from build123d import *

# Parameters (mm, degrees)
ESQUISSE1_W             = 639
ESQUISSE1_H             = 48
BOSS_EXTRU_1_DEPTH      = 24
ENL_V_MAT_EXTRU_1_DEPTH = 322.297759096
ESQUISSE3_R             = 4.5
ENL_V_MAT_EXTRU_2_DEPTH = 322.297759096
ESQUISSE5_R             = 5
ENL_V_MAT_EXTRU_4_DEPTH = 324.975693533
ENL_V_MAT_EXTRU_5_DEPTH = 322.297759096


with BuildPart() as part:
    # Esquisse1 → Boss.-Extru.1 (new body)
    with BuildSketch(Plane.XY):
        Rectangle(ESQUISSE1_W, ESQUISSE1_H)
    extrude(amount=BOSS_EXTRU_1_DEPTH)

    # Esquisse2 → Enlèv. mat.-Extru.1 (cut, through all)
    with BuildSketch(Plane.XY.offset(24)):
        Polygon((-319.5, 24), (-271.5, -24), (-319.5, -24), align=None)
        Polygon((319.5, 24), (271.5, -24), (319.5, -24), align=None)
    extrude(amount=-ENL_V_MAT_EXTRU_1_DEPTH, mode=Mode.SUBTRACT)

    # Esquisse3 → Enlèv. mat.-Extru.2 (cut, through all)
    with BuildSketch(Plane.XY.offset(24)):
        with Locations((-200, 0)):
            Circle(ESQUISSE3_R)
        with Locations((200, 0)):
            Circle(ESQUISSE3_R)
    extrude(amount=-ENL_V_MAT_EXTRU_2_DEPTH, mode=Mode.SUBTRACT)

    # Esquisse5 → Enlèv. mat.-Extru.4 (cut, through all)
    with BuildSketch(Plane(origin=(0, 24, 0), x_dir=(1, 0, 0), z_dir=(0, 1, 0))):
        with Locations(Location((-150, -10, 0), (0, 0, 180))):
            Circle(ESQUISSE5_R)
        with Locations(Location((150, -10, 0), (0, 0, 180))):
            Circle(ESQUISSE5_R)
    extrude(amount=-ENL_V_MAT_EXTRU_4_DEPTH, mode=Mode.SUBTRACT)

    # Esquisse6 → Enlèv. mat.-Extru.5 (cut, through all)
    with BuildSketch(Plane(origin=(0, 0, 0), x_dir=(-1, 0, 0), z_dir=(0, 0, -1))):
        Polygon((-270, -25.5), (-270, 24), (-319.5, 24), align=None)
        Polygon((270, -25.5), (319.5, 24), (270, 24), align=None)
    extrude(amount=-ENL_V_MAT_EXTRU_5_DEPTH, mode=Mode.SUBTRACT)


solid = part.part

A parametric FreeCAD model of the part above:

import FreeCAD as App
import Part
import Sketcher

V = App.Vector


def add_polygon(sketch, points):
    """Adds a closed chain of lines whose ends are joined by coincident constraints."""
    first, n = sketch.GeometryCount, len(points)
    for a, b in zip(points, points[1:] + points[:1]):
        sketch.addGeometry(Part.LineSegment(App.Vector(*a, 0), App.Vector(*b, 0)), False)
    for i in range(n):
        sketch.addConstraint(Sketcher.Constraint("Coincident", first + i, 2, first + (i + 1) % n, 1))

doc = App.newDocument("Part")
body = doc.addObject("PartDesign::Body", "Body")

sketch1 = body.newObject("Sketcher::SketchObject", "Sketch")
sketch1.AttachmentSupport = (doc.getObject("XY_Plane"), [""])
sketch1.MapMode = "FlatFace"
add_polygon(sketch1, [(-320, 24), (-320, -24), (320, -24), (320, 24)])
sketch1.addConstraint([
    Sketcher.Constraint("Vertical", 0),
    Sketcher.Constraint("Horizontal", 1),
    Sketcher.Constraint("Vertical", 2),
    Sketcher.Constraint("Horizontal", 3),
    Sketcher.Constraint("Symmetric", 0, 2, 2, 2, -1, 1),
    Sketcher.Constraint("DistanceX", 1, 1, 1, 2, 639.0),
    Sketcher.Constraint("DistanceY", 0, 2, 0, 1, 48.0),
])
pad1 = body.newObject("PartDesign::Pad", "Pad")
pad1.Profile = sketch1
pad1.Length = 24

sketch2 = body.newObject("Sketcher::SketchObject", "Sketch001")
sketch2.AttachmentSupport = (doc.getObject("XY_Plane"), [""])
sketch2.MapMode = "FlatFace"
sketch2.AttachmentOffset = App.Placement(V(0, 0, 24), App.Rotation())
add_polygon(sketch2, [(-272, -24), (-320, 24), (-320, -24)])
add_polygon(sketch2, [(320, 24), (272, -24), (320, -24)])
sketch2.addConstraint([
    Sketcher.Constraint("Vertical", 1),
    Sketcher.Constraint("Horizontal", 2),
    Sketcher.Constraint("Horizontal", 4),
    Sketcher.Constraint("Vertical", 5),
    Sketcher.Constraint("Symmetric", 0, 2, 4, 2, -1, 1),
    Sketcher.Constraint("Symmetric", 2, 2, 3, 2, -2),
    Sketcher.Constraint("Perpendicular", 0, 3),
    Sketcher.Constraint("Horizontal", 0, 2, 5, 2),
    Sketcher.Constraint("DistanceX", 2, 1, 2, 2, 48.0),
    Sketcher.Constraint("DistanceX", 2, 2, 3, 2, 543.0),
])
pocket1 = body.newObject("PartDesign::Pocket", "Pocket")
pocket1.Profile = sketch2
pocket1.Type = "ThroughAll"

sketch3 = body.newObject("Sketcher::SketchObject", "Sketch002")
sketch3.AttachmentSupport = (doc.getObject("XY_Plane"), [""])
sketch3.MapMode = "FlatFace"
sketch3.AttachmentOffset = App.Placement(V(0, 0, 24), App.Rotation())
sketch3.addGeometry([
    Part.Circle(V(-200, 0, 0), V(0, 0, 1), 4.5),
    Part.Circle(V(200, 0, 0), V(0, 0, 1), 4.5),
], False)
sketch3.addConstraint([
    Sketcher.Constraint("Equal", 0, 1),
    Sketcher.Constraint("Symmetric", 0, 3, 1, 3, -1, 1),
    Sketcher.Constraint("PointOnObject", 0, 3, -1),
    Sketcher.Constraint("Diameter", 0, 9.0),
    Sketcher.Constraint("DistanceX", 0, 3, -1, 1, 200.0),
])
pocket2 = body.newObject("PartDesign::Pocket", "Pocket001")
pocket2.Profile = sketch3
pocket2.Type = "ThroughAll"

sketch4 = body.newObject("Sketcher::SketchObject", "Sketch003")
sketch4.AttachmentSupport = (doc.getObject("XZ_Plane"), [""])
sketch4.MapMode = "FlatFace"
sketch4.AttachmentOffset = App.Placement(V(0, 0, -24), App.Rotation())
sketch4.addGeometry([
    Part.Circle(V(-150, 10, 0), V(0, 0, 1), 5),
    Part.Circle(V(150, 10, 0), V(0, 0, 1), 5),
], False)
sketch4.addConstraint([
    Sketcher.Constraint("Equal", 0, 1),
    Sketcher.Constraint("Symmetric", 0, 3, 1, 3, -2),
    Sketcher.Constraint("Diameter", 0, 10.0),
    Sketcher.Constraint("DistanceX", 0, 3, -1, 1, 150.0),
    Sketcher.Constraint("DistanceY", -1, 1, 0, 3, 10.0),
])
pocket3 = body.newObject("PartDesign::Pocket", "Pocket002")
pocket3.Profile = sketch4
pocket3.Type = "ThroughAll"
pocket3.Reversed = True

sketch5 = body.newObject("Sketcher::SketchObject", "Sketch004")
sketch5.AttachmentSupport = (doc.getObject("XY_Plane"), [""])
sketch5.MapMode = "FlatFace"
add_polygon(sketch5, [(270, -26), (270, 24), (320, 24)])
add_polygon(sketch5, [(-270, -26), (-320, 24), (-270, 24)])
sketch5.addConstraint([
    Sketcher.Constraint("Vertical", 0),
    Sketcher.Constraint("Horizontal", 1),
    Sketcher.Constraint("Horizontal", 4),
    Sketcher.Constraint("Vertical", 5),
    Sketcher.Constraint("Symmetric", 1, 2, 3, 2, -2),
    Sketcher.Constraint("Symmetric", 2, 2, 5, 2, -2),
    Sketcher.Constraint("Perpendicular", 2, 3),
    Sketcher.Constraint("DistanceX", 1, 1, 1, 2, 49.5),
    Sketcher.Constraint("DistanceX", -1, 1, 0, 2, 270.0),
    Sketcher.Constraint("DistanceY", -1, 1, 0, 2, 24.0),
])
pocket4 = body.newObject("PartDesign::Pocket", "Pocket003")
pocket4.Profile = sketch5
pocket4.Type = "ThroughAll"
pocket4.Reversed = True

doc.recompute()
